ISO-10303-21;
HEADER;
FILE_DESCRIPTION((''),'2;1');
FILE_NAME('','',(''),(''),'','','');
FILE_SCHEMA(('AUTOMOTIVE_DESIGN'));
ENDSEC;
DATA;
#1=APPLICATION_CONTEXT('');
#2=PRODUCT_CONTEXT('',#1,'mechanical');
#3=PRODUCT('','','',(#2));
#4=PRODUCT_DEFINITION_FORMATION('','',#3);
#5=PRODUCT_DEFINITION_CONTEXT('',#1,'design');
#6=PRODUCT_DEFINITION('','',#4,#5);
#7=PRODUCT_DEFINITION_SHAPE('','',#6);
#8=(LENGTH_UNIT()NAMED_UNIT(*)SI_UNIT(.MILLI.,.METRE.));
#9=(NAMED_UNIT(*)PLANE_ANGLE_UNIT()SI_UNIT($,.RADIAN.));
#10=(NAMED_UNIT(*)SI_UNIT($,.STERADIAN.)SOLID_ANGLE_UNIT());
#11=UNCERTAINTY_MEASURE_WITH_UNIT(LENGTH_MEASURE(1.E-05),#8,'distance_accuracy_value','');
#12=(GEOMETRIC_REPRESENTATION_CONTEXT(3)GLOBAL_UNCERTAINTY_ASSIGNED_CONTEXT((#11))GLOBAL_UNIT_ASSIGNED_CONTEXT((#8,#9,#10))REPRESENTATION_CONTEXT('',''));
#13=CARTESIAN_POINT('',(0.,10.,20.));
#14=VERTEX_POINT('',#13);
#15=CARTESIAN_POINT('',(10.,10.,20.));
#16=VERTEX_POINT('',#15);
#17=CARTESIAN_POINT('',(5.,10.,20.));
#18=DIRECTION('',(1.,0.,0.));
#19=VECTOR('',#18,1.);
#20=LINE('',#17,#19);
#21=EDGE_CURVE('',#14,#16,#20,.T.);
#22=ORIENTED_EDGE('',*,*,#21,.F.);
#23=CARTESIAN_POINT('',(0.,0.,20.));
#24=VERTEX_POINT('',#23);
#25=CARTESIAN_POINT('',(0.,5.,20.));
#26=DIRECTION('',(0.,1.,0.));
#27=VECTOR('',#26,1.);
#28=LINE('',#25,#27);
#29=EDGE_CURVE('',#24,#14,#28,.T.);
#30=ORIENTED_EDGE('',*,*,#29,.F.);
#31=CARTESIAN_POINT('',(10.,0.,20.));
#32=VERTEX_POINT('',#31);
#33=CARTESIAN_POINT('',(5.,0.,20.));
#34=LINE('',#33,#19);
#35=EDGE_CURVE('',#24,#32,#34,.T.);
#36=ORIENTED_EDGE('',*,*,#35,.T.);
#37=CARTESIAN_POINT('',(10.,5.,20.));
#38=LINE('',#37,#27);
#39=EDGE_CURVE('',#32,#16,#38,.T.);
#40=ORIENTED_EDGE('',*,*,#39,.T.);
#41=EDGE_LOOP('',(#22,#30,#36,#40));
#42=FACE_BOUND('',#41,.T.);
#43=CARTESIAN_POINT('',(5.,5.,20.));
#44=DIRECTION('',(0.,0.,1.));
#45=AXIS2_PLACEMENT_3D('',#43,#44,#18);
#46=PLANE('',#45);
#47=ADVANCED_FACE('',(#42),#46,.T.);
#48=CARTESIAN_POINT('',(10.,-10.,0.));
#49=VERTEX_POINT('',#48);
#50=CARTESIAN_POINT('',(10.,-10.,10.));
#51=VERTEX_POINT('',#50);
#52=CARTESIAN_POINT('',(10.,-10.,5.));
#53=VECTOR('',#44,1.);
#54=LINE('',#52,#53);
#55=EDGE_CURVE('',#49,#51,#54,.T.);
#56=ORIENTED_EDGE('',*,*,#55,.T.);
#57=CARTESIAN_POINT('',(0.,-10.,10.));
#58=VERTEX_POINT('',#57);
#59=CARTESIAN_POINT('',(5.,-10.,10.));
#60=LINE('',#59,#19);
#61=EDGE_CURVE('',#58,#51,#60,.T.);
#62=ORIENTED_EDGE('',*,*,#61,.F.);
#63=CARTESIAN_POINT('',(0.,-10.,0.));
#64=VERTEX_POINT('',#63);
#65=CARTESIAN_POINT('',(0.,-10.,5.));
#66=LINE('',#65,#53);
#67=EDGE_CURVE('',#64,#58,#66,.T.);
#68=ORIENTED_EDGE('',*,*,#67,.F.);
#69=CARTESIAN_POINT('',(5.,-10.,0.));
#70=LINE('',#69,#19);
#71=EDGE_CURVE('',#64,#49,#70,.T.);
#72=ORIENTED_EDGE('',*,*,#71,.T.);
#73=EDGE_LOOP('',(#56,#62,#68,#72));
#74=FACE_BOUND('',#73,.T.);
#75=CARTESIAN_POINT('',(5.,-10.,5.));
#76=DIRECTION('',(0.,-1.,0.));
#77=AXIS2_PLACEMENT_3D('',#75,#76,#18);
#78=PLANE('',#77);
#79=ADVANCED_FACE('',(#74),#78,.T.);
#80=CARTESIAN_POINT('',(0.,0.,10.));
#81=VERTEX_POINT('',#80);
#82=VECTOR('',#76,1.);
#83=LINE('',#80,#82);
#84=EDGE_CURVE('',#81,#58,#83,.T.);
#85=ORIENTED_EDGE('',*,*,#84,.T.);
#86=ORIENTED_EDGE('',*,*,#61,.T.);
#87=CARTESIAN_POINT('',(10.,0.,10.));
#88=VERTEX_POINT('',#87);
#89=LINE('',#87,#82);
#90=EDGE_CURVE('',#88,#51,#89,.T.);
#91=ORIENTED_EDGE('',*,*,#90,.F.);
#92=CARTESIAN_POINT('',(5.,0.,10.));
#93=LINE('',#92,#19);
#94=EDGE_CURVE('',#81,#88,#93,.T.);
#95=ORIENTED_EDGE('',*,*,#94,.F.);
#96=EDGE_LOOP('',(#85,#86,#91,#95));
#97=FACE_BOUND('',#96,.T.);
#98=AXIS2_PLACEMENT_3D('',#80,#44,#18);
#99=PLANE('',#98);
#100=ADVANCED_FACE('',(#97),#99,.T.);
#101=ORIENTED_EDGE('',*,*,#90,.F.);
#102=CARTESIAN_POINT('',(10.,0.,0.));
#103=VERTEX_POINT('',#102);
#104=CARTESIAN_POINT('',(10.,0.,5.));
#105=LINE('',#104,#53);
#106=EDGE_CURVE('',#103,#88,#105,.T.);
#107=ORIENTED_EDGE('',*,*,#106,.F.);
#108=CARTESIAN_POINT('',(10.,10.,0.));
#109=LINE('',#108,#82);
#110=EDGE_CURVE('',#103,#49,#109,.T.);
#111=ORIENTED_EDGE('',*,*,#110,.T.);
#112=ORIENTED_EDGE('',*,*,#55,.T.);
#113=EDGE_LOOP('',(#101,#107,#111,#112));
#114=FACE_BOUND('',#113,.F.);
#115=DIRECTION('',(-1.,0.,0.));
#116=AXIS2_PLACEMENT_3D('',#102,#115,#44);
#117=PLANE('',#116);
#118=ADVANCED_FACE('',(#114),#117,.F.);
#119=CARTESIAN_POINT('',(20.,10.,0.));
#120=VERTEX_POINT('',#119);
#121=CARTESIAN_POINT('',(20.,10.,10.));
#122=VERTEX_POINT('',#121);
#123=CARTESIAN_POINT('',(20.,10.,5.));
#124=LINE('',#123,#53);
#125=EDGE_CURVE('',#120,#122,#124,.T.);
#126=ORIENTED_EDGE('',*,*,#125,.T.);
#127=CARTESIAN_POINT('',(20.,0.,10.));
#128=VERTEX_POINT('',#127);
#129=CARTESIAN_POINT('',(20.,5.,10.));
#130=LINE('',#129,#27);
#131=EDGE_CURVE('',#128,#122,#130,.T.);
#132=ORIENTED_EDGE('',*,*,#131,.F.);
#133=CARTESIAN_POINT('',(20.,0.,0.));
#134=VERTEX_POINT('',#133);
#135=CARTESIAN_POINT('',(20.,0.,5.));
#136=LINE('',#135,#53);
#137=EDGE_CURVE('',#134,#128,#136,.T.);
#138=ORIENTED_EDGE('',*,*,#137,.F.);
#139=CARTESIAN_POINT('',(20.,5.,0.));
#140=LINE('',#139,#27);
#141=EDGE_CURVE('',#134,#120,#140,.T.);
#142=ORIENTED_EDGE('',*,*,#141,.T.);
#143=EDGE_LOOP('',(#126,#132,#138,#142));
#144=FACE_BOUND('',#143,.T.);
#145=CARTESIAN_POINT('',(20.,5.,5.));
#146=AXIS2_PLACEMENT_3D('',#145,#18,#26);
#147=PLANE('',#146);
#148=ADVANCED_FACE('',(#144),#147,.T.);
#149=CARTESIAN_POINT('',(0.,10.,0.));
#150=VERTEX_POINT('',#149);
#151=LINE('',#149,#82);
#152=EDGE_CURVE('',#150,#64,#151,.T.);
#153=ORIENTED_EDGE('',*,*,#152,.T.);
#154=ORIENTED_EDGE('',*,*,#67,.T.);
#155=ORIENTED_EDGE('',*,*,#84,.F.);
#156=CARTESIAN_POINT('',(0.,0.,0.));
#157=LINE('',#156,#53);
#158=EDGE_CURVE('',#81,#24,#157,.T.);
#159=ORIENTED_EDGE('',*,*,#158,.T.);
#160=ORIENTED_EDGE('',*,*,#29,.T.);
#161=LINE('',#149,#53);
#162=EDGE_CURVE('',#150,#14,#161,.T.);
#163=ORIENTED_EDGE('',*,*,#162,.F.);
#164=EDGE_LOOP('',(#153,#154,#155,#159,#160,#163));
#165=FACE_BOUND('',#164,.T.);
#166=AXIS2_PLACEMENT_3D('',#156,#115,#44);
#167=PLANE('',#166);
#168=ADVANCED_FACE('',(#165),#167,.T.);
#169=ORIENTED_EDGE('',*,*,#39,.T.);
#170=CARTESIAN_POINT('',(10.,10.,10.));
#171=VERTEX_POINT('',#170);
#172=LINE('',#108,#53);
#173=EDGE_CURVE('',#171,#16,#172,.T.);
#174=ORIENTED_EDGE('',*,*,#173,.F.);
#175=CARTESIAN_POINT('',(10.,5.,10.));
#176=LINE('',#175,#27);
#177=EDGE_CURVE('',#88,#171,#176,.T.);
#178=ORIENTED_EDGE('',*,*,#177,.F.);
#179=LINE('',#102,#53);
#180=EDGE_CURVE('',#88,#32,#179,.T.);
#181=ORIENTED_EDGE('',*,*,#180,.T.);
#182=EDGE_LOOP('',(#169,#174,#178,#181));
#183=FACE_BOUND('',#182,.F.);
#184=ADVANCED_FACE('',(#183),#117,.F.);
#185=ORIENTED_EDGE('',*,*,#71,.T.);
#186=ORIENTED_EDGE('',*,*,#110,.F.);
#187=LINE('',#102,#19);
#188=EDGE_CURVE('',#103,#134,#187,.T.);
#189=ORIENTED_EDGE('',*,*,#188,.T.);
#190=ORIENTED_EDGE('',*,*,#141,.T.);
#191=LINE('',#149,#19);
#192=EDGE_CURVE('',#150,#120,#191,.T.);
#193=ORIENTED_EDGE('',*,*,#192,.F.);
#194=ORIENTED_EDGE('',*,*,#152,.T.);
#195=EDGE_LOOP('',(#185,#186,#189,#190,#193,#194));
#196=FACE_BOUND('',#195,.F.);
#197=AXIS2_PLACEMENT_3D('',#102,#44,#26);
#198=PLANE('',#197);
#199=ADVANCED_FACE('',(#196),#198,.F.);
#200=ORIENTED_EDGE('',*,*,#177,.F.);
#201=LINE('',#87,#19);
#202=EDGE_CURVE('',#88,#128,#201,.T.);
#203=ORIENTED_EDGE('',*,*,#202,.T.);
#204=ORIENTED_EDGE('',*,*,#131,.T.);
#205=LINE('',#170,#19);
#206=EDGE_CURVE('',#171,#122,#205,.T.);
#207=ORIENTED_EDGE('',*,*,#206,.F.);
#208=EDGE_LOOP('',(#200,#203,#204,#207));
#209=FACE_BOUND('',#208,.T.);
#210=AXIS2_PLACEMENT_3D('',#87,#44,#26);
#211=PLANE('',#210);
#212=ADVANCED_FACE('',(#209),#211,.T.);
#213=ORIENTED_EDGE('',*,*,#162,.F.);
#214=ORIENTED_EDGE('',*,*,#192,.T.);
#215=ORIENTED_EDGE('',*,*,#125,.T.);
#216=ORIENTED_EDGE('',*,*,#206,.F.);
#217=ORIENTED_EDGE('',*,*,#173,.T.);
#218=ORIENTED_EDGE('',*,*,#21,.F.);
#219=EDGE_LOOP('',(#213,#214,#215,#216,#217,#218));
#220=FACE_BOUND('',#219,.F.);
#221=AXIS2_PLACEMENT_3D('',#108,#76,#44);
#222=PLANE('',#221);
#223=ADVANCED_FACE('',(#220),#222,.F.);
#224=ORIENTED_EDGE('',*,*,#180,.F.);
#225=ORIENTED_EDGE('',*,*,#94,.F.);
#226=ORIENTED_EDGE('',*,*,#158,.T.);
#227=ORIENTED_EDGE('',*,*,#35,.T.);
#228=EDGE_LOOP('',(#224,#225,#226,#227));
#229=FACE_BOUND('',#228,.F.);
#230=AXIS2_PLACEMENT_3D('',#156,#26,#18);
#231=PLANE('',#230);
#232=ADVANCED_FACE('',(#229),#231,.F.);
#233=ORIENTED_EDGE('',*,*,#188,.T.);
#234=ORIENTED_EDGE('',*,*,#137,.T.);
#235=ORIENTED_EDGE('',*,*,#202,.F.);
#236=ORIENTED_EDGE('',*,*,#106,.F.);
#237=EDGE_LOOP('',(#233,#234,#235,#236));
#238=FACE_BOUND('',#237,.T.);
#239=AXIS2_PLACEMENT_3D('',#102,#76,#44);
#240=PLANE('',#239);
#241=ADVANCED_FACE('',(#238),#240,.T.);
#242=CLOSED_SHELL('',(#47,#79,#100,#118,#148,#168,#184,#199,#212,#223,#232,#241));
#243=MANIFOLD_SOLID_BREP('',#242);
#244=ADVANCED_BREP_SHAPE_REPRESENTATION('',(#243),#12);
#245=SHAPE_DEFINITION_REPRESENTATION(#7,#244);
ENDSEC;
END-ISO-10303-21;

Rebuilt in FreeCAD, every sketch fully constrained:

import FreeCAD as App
import Part
import Sketcher


def add_polygon(sketch, points):
    """Adds a closed chain of lines whose ends are joined by coincident constraints."""
    first, n = sketch.GeometryCount, len(points)
    for a, b in zip(points, points[1:] + points[:1]):
        sketch.addGeometry(Part.LineSegment(App.Vector(*a, 0), App.Vector(*b, 0)), False)
    for i in range(n):
        sketch.addConstraint(Sketcher.Constraint("Coincident", first + i, 2, first + (i + 1) % n, 1))

doc = App.newDocument("Part")
body = doc.addObject("PartDesign::Body", "Body")

# Sketch on XY plane
sketch1 = body.newObject("Sketcher::SketchObject", "Sketch")
sketch1.AttachmentSupport = (doc.getObject("XY_Plane"), [""])
sketch1.MapMode = "FlatFace"
add_polygon(sketch1, [(0, 10), (0, 0), (10, 0), (10, 10)])  # lines 0-3
sketch1.addConstraint([
    Sketcher.Constraint("Vertical", 0),
    Sketcher.Constraint("Horizontal", 1),
    Sketcher.Constraint("Vertical", 2),
    Sketcher.Constraint("Horizontal", 3),
    Sketcher.Constraint("Coincident", 0, 2, -1, 1),
    Sketcher.Constraint("Equal", 3, 0),
    Sketcher.Constraint("DistanceX", 1, 1, 1, 2, 10.0),
])
pad1 = body.newObject("PartDesign::Pad", "Pad")
pad1.Profile = sketch1
pad1.Length = 20

# Sketch on XZ plane
sketch2 = body.newObject("Sketcher::SketchObject", "Sketch001")
sketch2.AttachmentSupport = (doc.getObject("XZ_Plane"), [""])
sketch2.MapMode = "FlatFace"
add_polygon(sketch2, [(0, 10), (0, 0), (10, 0), (10, 10)])  # lines 0-3
sketch2.addConstraint([
    Sketcher.Constraint("Vertical", 0),
    Sketcher.Constraint("Horizontal", 1),
    Sketcher.Constraint("Vertical", 2),
    Sketcher.Constraint("Horizontal", 3),
    Sketcher.Constraint("Coincident", 0, 2, -1, 1),
    Sketcher.Constraint("Equal", 3, 0),
    Sketcher.Constraint("DistanceX", 1, 1, 1, 2, 10.0),
])
pad2 = body.newObject("PartDesign::Pad", "Pad001")
pad2.Profile = sketch2
pad2.Length = 10

# Sketch on YZ plane
sketch3 = body.newObject("Sketcher::SketchObject", "Sketch002")
sketch3.AttachmentSupport = (doc.getObject("YZ_Plane"), [""])
sketch3.MapMode = "FlatFace"
sketch3.AttachmentOffset = App.Placement(App.Vector(0, 0, 10), App.Rotation())
add_polygon(sketch3, [(0, 10), (0, 0), (10, 0), (10, 10)])  # lines 0-3
sketch3.addConstraint([
    Sketcher.Constraint("Vertical", 0),
    Sketcher.Constraint("Horizontal", 1),
    Sketcher.Constraint("Vertical", 2),
    Sketcher.Constraint("Horizontal", 3),
    Sketcher.Constraint("Coincident", 0, 2, -1, 1),
    Sketcher.Constraint("Equal", 3, 0),
    Sketcher.Constraint("DistanceX", 1, 1, 1, 2, 10.0),
])
pad3 = body.newObject("PartDesign::Pad", "Pad002")
pad3.Profile = sketch3
pad3.Length = 10

doc.recompute()
